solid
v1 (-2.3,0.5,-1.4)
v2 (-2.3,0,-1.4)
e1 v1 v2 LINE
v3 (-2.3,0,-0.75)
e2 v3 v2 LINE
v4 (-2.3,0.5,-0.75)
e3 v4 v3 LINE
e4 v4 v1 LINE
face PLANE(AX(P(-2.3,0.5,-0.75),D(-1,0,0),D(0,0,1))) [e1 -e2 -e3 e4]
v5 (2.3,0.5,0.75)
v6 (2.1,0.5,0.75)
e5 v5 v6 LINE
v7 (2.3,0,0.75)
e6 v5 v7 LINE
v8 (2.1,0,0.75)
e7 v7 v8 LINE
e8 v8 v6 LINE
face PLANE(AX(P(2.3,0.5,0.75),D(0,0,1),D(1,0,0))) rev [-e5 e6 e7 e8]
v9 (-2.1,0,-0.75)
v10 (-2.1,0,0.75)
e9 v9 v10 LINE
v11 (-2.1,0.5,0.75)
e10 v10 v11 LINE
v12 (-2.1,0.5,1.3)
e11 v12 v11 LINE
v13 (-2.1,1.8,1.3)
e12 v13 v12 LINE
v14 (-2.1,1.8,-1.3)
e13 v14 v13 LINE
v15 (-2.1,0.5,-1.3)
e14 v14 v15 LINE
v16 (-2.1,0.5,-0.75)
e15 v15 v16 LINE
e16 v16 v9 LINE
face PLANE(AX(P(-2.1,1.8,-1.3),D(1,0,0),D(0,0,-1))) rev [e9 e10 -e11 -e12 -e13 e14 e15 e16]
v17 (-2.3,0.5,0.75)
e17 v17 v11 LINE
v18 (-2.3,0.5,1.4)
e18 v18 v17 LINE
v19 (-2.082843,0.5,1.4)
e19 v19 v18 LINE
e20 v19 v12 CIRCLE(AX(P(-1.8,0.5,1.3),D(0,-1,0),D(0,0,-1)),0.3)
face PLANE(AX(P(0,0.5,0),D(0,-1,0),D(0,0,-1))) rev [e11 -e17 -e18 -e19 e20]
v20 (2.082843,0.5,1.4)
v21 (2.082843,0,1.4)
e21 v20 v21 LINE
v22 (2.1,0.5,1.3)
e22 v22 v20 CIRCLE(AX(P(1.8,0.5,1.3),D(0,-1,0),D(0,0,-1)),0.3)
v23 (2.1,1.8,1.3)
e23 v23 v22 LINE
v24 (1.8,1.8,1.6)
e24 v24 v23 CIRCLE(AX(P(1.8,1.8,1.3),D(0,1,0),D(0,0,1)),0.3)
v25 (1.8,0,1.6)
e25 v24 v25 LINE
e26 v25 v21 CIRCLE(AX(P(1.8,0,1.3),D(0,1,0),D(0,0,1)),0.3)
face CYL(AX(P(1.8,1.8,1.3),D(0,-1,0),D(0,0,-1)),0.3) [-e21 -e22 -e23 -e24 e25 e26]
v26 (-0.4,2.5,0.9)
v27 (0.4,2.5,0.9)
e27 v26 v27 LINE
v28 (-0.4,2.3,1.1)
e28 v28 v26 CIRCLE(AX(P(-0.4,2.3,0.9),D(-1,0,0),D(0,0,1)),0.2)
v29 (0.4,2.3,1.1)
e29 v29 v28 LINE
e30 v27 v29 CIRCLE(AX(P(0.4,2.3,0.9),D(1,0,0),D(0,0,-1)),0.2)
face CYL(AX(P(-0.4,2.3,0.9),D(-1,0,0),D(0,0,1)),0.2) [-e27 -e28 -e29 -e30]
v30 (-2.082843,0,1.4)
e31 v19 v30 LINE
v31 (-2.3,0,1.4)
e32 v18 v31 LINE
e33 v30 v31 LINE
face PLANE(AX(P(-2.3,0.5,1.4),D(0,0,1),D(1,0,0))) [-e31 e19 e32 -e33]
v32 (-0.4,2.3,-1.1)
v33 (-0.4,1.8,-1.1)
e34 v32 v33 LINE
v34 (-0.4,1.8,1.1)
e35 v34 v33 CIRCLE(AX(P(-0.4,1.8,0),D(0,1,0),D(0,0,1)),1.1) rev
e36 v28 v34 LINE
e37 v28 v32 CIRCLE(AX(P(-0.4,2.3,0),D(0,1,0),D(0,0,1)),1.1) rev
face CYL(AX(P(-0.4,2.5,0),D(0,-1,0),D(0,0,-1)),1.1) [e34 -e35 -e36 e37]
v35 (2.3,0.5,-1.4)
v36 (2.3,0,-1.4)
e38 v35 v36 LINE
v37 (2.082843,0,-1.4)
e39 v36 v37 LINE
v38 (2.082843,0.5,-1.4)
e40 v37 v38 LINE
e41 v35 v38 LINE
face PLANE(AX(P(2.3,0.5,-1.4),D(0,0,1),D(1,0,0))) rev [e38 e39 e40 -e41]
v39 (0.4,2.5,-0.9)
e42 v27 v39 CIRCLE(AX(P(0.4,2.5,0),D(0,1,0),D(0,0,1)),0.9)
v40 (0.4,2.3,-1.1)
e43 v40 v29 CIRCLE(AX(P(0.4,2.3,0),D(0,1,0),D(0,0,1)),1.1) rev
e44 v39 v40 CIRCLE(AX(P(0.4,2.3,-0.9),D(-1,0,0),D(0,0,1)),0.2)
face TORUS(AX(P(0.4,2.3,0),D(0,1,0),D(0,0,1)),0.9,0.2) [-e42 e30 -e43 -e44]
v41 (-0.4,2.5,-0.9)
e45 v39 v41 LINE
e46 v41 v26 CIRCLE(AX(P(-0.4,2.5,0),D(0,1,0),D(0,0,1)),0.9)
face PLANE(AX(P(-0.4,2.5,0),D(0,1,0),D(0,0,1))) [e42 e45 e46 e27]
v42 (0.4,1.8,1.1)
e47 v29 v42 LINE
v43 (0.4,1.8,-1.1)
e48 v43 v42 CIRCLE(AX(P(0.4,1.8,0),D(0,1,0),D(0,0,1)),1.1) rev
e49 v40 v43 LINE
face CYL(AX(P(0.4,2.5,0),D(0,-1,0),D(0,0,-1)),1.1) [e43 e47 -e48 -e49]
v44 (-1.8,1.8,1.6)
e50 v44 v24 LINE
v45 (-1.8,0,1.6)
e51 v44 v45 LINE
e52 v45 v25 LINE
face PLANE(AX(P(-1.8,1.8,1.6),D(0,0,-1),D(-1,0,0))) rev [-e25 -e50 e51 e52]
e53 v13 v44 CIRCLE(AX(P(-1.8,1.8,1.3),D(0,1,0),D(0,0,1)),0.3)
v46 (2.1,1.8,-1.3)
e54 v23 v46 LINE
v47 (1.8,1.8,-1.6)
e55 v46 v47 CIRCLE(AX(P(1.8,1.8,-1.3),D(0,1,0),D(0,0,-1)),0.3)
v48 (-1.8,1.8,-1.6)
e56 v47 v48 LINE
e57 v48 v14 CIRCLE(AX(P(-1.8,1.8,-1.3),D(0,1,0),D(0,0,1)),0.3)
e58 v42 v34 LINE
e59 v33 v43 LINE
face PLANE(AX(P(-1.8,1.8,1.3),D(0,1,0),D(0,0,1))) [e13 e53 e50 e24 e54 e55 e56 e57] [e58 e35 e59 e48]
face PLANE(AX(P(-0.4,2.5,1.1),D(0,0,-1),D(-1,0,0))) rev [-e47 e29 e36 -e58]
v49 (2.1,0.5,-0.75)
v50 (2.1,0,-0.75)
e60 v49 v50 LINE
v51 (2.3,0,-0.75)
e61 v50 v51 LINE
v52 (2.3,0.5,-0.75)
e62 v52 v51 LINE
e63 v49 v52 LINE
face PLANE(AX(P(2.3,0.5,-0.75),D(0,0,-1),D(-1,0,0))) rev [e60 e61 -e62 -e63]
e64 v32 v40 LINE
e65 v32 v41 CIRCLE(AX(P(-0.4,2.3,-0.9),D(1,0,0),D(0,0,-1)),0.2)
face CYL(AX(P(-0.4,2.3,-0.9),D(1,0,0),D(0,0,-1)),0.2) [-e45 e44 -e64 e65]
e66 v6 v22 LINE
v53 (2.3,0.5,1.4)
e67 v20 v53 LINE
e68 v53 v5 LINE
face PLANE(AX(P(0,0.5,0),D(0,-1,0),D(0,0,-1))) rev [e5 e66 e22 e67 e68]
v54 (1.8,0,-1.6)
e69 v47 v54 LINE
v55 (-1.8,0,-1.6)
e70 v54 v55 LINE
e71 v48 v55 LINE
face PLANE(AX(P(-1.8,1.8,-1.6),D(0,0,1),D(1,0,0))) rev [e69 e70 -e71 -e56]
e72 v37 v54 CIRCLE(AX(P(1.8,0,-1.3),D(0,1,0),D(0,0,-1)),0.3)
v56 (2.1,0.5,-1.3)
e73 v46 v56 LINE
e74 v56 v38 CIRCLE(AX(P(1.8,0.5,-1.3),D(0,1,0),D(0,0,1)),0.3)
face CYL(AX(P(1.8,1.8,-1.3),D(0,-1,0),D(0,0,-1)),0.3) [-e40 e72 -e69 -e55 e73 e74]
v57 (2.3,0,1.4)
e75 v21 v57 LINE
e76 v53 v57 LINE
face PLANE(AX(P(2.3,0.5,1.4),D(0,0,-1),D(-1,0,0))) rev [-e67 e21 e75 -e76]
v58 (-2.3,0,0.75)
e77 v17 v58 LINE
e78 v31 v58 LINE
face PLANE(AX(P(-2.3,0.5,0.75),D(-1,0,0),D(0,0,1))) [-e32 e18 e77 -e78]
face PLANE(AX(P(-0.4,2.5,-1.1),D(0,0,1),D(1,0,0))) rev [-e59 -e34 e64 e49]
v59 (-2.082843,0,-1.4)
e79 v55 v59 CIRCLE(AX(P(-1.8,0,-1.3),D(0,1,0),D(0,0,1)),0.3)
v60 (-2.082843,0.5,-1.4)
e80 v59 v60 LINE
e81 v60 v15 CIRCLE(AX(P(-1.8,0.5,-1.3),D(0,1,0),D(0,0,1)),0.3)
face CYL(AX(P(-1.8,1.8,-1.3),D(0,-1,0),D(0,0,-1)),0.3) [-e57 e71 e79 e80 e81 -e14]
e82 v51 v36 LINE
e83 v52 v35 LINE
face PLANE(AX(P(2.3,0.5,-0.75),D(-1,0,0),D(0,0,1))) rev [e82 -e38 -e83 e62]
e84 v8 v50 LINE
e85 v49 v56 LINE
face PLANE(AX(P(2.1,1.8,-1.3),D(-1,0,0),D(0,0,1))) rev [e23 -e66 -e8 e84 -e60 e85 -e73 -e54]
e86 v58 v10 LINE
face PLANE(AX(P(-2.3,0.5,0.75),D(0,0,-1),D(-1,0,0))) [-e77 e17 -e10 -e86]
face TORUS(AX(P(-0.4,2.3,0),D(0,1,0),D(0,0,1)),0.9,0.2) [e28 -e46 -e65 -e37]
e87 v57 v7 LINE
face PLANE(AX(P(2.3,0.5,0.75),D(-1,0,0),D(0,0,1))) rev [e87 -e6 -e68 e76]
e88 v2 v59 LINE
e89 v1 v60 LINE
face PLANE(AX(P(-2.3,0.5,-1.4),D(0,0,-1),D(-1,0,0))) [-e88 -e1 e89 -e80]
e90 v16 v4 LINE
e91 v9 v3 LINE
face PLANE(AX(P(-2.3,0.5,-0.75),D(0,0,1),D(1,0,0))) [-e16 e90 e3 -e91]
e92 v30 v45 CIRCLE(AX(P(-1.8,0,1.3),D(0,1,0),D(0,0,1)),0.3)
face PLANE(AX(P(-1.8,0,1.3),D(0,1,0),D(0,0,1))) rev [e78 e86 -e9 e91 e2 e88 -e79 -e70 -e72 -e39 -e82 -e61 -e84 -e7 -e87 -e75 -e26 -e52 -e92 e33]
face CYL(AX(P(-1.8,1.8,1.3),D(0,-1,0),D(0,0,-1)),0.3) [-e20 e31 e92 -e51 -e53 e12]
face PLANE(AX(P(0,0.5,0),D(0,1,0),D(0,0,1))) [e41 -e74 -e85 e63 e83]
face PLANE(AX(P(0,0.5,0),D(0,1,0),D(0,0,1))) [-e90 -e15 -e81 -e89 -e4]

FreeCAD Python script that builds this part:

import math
import FreeCAD as App
import Part
import Sketcher

V = App.Vector


def edges_at(feature, points):
    """Names of the edges that pass closest to the given points."""
    edges = feature.Shape.Edges
    near = lambda p: min(range(len(edges)), key=lambda i: edges[i].distToShape(Part.Vertex(*p))[0])
    return sorted({f"Edge{near(p) + 1}" for p in points})

doc = App.newDocument("Part")
body = doc.addObject("PartDesign::Body", "Body")

# Sketch on XZ plane
sketch1 = body.newObject("Sketcher::SketchObject", "Sketch")
sketch1.AttachmentSupport = (doc.getObject("XZ_Plane"), [""])
sketch1.MapMode = "FlatFace"
sketch1.addGeometry([
    Part.LineSegment(V(1.8, -1.6, 0), V(-1.8, -1.6, 0)),  # 0
    Part.ArcOfCircle(Part.Circle(V(-1.8, -1.3, 0), V(0, 0, 1), 0.3), math.radians(-180), math.radians(-90)),  # 1
    Part.LineSegment(V(-2.1, -1.3, 0), V(-2.1, 1.3, 0)),  # 2
    Part.ArcOfCircle(Part.Circle(V(-1.8, 1.3, 0), V(0, 0, 1), 0.3), math.radians(90), math.radians(180)),  # 3
    Part.LineSegment(V(-1.8, 1.6, 0), V(1.8, 1.6, 0)),  # 4
    Part.ArcOfCircle(Part.Circle(V(1.8, 1.3, 0), V(0, 0, 1), 0.3), math.radians(0), math.radians(90)),  # 5
    Part.LineSegment(V(2.1, 1.3, 0), V(2.1, -1.3, 0)),  # 6
    Part.ArcOfCircle(Part.Circle(V(1.8, -1.3, 0), V(0, 0, 1), 0.3), math.radians(-90), math.radians(0)),  # 7
], False)
sketch1.addConstraint([
    Sketcher.Constraint("Tangent", 0, 2, 1, 2),
    Sketcher.Constraint("Tangent", 1, 1, 2, 1),
    Sketcher.Constraint("Tangent", 2, 2, 3, 2),
    Sketcher.Constraint("Tangent", 3, 1, 4, 1),
    Sketcher.Constraint("Tangent", 4, 2, 5, 2),
    Sketcher.Constraint("Tangent", 5, 1, 6, 1),
    Sketcher.Constraint("Tangent", 6, 2, 7, 2),
    Sketcher.Constraint("Tangent", 7, 1, 0, 1),
    Sketcher.Constraint("Horizontal", 0),
    Sketcher.Constraint("Vertical", 2),
    Sketcher.Constraint("Horizontal", 4),
    Sketcher.Constraint("Vertical", 6),
    Sketcher.Constraint("Equal", 1, 3),
    Sketcher.Constraint("Equal", 3, 5),
    Sketcher.Constraint("Equal", 5, 7),
    Sketcher.Constraint("Symmetric", 1, 3, 5, 3, -1, 1),
    Sketcher.Constraint("Radius", 1, 0.3),
    Sketcher.Constraint("DistanceX", 0, 2, 0, 1, 3.6),
    Sketcher.Constraint("DistanceY", 2, 1, 2, 2, 2.6),
])
pad1 = body.newObject("PartDesign::Pad", "Pad")
pad1.Profile = sketch1
pad1.Length = 1.8
pad1.Reversed = True

# Sketch on XZ plane
sketch2 = body.newObject("Sketcher::SketchObject", "Sketch001")
sketch2.AttachmentSupport = (doc.getObject("XZ_Plane"), [""])
sketch2.MapMode = "FlatFace"
sketch2.addGeometry([
    Part.LineSegment(V(0.4, -1.1, 0), V(-0.4, -1.1, 0)),
    Part.ArcOfCircle(Part.Circle(V(-0.4, 0, 0), V(0, 0, 1), 1.1), math.radians(90), math.radians(270)),
    Part.LineSegment(V(-0.4, 1.1, 0), V(0.4, 1.1, 0)),
    Part.ArcOfCircle(Part.Circle(V(0.4, 0, 0), V(0, 0, 1), 1.1), math.radians(-90), math.radians(90)),
], False)
sketch2.addConstraint([
    Sketcher.Constraint("Tangent", 0, 2, 1, 2),
    Sketcher.Constraint("Tangent", 1, 1, 2, 1),
    Sketcher.Constraint("Tangent", 2, 2, 3, 2),
    Sketcher.Constraint("Tangent", 3, 1, 0, 1),
    Sketcher.Constraint("Horizontal", 0),
    Sketcher.Constraint("Horizontal", 2),
    Sketcher.Constraint("Symmetric", 1, 3, 3, 3, -1, 1),
    Sketcher.Constraint("Radius", 1, 1.1),
    Sketcher.Constraint("DistanceX", 0, 2, 0, 1, 0.8),
])
pad2 = body.newObject("PartDesign::Pad", "Pad001")
pad2.Profile = sketch2
pad2.Length = 2.5
pad2.Reversed = True
doc.recompute()

fillet = body.newObject("PartDesign::Fillet", "Fillet")
fillet.Base = (pad2, edges_at(pad2, [
    (-1.5, 2.5, 0),
    (0, 2.5, 1.1),
    (1.5, 2.5, 0),
    (0, 2.5, -1.1),
]))
fillet.Radius = 0.2

# Sketch on XZ plane
sketch3 = body.newObject("Sketcher::SketchObject", "Sketch002")
sketch3.AttachmentSupport = (doc.getObject("XZ_Plane"), [""])
sketch3.MapMode = "FlatFace"
sketch3.addGeometry([
    Part.LineSegment(V(1.6, -1.4, 0), V(1.6, -0.8, 0)),  # 0
    Part.LineSegment(V(1.6, -0.8, 0), V(2.3, -0.8, 0)),  # 1
    Part.LineSegment(V(2.3, -0.8, 0), V(2.3, -1.4, 0)),  # 2
    Part.LineSegment(V(2.3, -1.4, 0), V(1.6, -1.4, 0)),  # 3
    Part.LineSegment(V(1.6, 0.8, 0), V(1.6, 1.4, 0)),  # 4
    Part.LineSegment(V(1.6, 1.4, 0), V(2.3, 1.4, 0)),  # 5
    Part.LineSegment(V(2.3, 1.4, 0), V(2.3, 0.8, 0)),  # 6
    Part.LineSegment(V(2.3, 0.8, 0), V(1.6, 0.8, 0)),  # 7
], False)
sketch3.addConstraint([
    Sketcher.Constraint("Coincident", 0, 2, 1, 1),
    Sketcher.Constraint("Coincident", 1, 2, 2, 1),
    Sketcher.Constraint("Coincident", 2, 2, 3, 1),
    Sketcher.Constraint("Coincident", 3, 2, 0, 1),
    Sketcher.Constraint("Coincident", 4, 2, 5, 1),
    Sketcher.Constraint("Coincident", 5, 2, 6, 1),
    Sketcher.Constraint("Coincident", 6, 2, 7, 1),
    Sketcher.Constraint("Coincident", 7, 2, 4, 1),
    Sketcher.Constraint("Vertical", 0),
    Sketcher.Constraint("Horizontal", 1),
    Sketcher.Constraint("Vertical", 2),
    Sketcher.Constraint("Horizontal", 3),
    Sketcher.Constraint("Vertical", 4),
    Sketcher.Constraint("Horizontal", 5),
    Sketcher.Constraint("Vertical", 6),
    Sketcher.Constraint("Horizontal", 7),
    Sketcher.Constraint("Symmetric", 3, 2, 4, 2, -1),
    Sketcher.Constraint("Symmetric", 1, 2, 6, 2, -1),
    Sketcher.Constraint("DistanceX", 1, 1, 1, 2, 0.75),
    Sketcher.Constraint("DistanceY", 0, 1, 0, 2, 0.65),
    Sketcher.Constraint("DistanceX", -1, 1, 1, 2, 2.3),
    Sketcher.Constraint("DistanceY", 2, 2, -1, 1, 1.4),
])
pad3 = body.newObject("PartDesign::Pad", "Pad002")
pad3.Profile = sketch3
pad3.Length = 0.5
pad3.Reversed = True
doc.recompute()

mirrored = body.newObject("PartDesign::Mirrored", "Mirrored")
mirrored.Originals = [pad3]
mirrored.MirrorPlane = (doc.getObject("YZ_Plane"), [""])
body.Tip = mirrored

doc.recompute()
